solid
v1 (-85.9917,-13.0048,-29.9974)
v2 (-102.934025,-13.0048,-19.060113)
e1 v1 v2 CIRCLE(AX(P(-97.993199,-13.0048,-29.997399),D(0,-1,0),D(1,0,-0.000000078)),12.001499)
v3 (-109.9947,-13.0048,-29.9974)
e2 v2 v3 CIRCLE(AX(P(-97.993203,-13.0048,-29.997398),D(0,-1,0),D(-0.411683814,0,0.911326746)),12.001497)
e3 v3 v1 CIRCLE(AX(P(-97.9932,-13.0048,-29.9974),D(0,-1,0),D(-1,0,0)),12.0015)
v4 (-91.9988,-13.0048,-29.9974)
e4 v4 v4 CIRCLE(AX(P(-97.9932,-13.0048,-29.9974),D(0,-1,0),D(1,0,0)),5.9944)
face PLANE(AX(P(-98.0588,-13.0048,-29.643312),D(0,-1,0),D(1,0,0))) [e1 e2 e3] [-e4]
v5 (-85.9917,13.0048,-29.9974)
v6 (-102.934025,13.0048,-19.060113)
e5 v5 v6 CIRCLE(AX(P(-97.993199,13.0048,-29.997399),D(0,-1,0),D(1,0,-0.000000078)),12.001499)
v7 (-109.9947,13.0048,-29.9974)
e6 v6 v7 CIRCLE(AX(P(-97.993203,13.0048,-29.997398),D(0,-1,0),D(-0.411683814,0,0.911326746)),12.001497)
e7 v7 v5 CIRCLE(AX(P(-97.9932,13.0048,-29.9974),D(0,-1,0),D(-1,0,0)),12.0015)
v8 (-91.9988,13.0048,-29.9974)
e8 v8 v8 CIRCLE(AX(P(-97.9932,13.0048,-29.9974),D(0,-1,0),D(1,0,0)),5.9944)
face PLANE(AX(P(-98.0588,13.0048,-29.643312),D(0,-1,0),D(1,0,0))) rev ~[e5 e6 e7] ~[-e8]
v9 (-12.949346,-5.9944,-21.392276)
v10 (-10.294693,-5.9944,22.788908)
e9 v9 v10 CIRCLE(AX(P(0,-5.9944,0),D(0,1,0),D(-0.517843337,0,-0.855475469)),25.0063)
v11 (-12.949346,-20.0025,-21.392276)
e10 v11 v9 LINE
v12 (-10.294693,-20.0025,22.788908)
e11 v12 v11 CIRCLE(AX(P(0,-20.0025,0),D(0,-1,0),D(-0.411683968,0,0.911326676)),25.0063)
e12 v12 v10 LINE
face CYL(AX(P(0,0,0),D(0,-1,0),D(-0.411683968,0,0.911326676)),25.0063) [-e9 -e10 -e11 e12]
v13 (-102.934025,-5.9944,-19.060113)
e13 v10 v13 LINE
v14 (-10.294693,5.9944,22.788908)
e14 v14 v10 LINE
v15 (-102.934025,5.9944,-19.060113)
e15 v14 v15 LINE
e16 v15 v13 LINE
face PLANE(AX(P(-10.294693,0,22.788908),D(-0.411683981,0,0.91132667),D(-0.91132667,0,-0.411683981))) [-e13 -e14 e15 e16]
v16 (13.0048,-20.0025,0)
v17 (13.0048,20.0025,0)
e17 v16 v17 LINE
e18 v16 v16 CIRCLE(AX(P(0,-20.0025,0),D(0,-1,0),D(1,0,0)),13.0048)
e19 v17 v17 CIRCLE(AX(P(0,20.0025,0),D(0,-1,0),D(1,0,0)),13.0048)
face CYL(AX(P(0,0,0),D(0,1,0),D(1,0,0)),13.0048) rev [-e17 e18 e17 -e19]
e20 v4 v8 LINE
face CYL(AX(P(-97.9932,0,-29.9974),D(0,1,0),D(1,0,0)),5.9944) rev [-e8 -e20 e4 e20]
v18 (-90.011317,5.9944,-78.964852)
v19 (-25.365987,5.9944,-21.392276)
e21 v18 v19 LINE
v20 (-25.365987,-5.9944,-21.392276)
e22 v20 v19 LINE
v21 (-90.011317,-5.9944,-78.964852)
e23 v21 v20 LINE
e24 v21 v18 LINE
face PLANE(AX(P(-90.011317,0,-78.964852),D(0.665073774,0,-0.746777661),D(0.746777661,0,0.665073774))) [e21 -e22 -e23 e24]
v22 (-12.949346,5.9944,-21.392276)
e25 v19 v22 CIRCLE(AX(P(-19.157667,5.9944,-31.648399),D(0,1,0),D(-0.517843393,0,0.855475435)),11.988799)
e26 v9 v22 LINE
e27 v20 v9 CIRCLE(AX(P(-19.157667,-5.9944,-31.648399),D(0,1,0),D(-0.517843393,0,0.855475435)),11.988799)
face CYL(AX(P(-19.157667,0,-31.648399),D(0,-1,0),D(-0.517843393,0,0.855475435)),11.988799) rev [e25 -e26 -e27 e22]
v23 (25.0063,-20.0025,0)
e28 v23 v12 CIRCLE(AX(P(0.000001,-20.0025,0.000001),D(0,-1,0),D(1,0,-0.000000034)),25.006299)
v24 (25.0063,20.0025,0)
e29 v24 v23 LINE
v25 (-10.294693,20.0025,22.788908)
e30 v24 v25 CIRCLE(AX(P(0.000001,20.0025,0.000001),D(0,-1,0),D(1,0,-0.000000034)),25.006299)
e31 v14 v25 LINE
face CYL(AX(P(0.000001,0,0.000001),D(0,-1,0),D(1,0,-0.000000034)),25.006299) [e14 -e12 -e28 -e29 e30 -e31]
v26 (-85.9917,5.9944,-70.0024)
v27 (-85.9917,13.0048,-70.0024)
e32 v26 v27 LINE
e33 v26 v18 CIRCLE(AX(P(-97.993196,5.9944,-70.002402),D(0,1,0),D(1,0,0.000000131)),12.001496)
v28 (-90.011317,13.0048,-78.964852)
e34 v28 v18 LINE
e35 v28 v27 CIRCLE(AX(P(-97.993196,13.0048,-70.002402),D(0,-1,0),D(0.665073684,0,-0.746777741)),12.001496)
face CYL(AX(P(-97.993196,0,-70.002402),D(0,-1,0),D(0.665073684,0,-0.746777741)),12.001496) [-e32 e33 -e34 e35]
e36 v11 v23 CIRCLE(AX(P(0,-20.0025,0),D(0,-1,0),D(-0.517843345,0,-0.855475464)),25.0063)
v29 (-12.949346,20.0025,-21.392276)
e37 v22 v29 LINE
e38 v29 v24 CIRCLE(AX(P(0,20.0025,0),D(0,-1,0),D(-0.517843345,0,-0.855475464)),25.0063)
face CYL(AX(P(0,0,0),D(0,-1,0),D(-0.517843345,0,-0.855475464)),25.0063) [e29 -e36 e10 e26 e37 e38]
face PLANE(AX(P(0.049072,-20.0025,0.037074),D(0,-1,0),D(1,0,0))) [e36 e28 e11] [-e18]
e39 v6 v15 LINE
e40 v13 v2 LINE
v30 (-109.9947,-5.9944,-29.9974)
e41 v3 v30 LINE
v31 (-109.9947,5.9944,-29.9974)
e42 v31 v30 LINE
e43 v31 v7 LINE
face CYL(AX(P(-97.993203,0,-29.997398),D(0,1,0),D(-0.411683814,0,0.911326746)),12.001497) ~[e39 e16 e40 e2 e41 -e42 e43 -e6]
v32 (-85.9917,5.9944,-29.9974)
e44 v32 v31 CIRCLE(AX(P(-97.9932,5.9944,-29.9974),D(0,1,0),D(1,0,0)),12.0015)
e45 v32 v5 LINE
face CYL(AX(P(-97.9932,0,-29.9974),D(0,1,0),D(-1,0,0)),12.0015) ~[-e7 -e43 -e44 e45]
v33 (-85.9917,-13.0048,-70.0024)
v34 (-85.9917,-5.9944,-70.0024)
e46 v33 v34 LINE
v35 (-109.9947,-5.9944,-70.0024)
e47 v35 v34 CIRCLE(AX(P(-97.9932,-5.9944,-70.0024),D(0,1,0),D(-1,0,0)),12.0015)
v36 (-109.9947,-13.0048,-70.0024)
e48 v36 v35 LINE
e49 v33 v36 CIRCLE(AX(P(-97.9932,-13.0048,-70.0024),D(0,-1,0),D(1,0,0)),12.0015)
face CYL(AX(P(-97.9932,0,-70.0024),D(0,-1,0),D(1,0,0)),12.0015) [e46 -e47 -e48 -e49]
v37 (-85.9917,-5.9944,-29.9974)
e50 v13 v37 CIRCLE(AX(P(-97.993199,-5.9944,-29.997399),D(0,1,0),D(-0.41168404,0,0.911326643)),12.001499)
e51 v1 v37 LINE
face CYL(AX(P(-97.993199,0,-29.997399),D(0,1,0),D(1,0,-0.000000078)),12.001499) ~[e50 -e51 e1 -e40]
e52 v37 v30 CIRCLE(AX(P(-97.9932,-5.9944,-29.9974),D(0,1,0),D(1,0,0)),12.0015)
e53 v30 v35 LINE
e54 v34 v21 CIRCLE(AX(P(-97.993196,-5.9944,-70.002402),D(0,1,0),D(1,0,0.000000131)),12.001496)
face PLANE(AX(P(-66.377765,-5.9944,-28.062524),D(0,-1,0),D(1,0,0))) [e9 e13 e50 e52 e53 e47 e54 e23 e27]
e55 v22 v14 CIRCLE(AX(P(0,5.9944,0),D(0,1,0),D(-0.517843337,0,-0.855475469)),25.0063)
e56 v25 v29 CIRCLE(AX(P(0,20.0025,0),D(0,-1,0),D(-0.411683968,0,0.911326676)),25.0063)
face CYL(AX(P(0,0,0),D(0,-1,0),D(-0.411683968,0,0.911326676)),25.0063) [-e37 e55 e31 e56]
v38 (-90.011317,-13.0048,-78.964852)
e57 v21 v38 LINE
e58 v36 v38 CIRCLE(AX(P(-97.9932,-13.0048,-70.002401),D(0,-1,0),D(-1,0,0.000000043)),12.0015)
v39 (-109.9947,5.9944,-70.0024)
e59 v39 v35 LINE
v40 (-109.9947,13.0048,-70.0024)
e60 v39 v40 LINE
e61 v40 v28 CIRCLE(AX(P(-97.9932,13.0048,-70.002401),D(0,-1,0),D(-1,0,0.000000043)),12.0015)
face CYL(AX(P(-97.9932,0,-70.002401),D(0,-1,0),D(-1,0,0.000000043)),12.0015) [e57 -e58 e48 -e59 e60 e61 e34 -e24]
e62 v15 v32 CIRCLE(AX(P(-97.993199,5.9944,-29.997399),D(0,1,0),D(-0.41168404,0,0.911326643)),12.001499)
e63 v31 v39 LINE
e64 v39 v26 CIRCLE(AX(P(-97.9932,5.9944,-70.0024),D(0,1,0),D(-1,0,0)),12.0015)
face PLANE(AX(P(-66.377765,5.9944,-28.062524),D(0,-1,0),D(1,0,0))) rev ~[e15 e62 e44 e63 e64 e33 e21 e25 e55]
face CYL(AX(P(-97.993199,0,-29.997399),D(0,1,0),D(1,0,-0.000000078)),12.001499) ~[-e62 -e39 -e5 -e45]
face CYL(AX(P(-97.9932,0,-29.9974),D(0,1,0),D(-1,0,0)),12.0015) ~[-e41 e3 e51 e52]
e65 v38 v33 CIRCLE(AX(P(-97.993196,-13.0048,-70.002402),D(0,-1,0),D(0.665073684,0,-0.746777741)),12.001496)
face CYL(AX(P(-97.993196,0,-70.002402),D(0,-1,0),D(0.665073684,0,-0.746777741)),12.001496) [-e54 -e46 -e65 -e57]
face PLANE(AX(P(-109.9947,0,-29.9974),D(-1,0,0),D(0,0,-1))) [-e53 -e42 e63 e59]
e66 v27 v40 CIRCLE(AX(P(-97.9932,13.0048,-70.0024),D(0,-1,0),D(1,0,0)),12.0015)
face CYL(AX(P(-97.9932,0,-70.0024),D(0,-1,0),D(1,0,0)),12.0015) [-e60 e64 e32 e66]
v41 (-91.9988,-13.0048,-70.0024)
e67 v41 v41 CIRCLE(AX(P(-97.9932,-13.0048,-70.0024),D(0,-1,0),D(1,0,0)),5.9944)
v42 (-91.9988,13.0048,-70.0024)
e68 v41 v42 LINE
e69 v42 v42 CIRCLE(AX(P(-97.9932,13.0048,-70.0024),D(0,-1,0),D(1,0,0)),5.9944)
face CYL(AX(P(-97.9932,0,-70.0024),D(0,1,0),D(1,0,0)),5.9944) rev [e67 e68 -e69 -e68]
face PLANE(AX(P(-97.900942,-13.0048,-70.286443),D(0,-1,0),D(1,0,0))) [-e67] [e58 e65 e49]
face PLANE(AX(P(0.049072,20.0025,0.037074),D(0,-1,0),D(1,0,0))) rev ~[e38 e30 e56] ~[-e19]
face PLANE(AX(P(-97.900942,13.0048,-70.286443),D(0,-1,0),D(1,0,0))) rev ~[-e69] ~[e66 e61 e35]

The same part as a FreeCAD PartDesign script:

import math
import FreeCAD as App
import Part
import Sketcher
from FreeCAD import Vector
Q = App.Units.Quantity

doc = App.newDocument("Part")
params = doc.addObject("Spreadsheet::Sheet", "Params")
for row, (alias, value) in enumerate([
    ("sketch1_diameter", "1.024 in"),
    ("pad1_length", "1.575 in"),
    ("sketch2_radius", "0.472 in"),
    ("sketch2_height", "1.575 in"),
    ("pad2_length", "0.472 in"),
    ("sketch3_diameter", "0.472 in"),
    ("pad3_length", "1.024 in"),
], start=1):
    params.set(f"A{row}", alias)
    params.set(f"B{row}", "=" + value)
    params.setAlias(f"B{row}", alias)

body = doc.addObject("PartDesign::Body", "Body")

# Sketch on XZ plane
sketch1 = body.newObject("Sketcher::SketchObject", "Sketch")
sketch1.AttachmentSupport = (doc.getObject("XZ_Plane"), [""])
sketch1.MapMode = "FlatFace"
sketch1.addGeometry([
    Part.ArcOfCircle(Part.Circle(Vector(0, 0, 0), Vector(0, 0, 1), 25.0063), math.radians(-121.187698), math.radians(0)),
    Part.ArcOfCircle(Part.Circle(Vector(0.000001, 0.000001, 0), Vector(0, 0, 1), 25.006299), math.radians(-0.000002), math.radians(114.310666)),
    Part.ArcOfCircle(Part.Circle(Vector(0, 0, 0), Vector(0, 0, 1), 25.0063), math.radians(114.310663), math.radians(238.812302)),
    Part.Circle(Vector(0, 0, 0), Vector(0, 0, 1), 13.0048),
], False)
sketch1.addConstraint([
    Sketcher.Constraint("Tangent", 0, 2, 1, 1),
    Sketcher.Constraint("Tangent", 1, 2, 2, 1),
    Sketcher.Constraint("Tangent", 2, 2, 0, 1),
    Sketcher.Constraint("Coincident", 0, 3, -1, 1),
    Sketcher.Constraint("Coincident", 3, 3, -1, 1),
    Sketcher.Constraint("PointOnObject", 0, 2, -1),
    Sketcher.Constraint("Diameter", 3, Q("1.024 in")),
    Sketcher.Constraint("Radius", 0, Q("0.9845 in")),
    Sketcher.Constraint("DistanceY", -1, 1, 1, 2, 22.788908),
    Sketcher.Constraint("DistanceX", 2, 2, -1, 1, 12.949346),
])
sketch1.setExpression("Constraints[6]", "Params.sketch1_diameter")
pad1 = body.newObject("PartDesign::Pad", "Pad")
pad1.Profile = sketch1
pad1.setExpression("Length", "Params.pad1_length")
pad1.Midplane = True

# Sketch on XZ plane
sketch2 = body.newObject("Sketcher::SketchObject", "Sketch001")
sketch2.AttachmentSupport = (doc.getObject("XZ_Plane"), [""])
sketch2.MapMode = "FlatFace"
sketch2.addGeometry([
    Part.ArcOfCircle(Part.Circle(Vector(0, 0, 0), Vector(0, 0, 1), 25.0063), math.radians(114.310663), math.radians(238.812302)),  # 0
    Part.LineSegment(Vector(-10.294693, 22.788908, 0), Vector(-102.934025, -19.060113, 0)),  # 1
    Part.ArcOfCircle(Part.Circle(Vector(-97.993199, -29.997399, 0), Vector(0, 0, 1), 12.001499), math.radians(-0.000004), math.radians(114.310668)),  # 2
    Part.ArcOfCircle(Part.Circle(Vector(-97.9932, -29.9974, 0), Vector(0, 0, 1), 12.0015), math.radians(180), math.radians(360)),  # 3
    Part.LineSegment(Vector(-109.9947, -29.9974, 0), Vector(-109.9947, -70.0024, 0)),  # 4
    Part.ArcOfCircle(Part.Circle(Vector(-97.9932, -70.0024, 0), Vector(0, 0, 1), 12.0015), math.radians(0), math.radians(180)),  # 5
    Part.ArcOfCircle(Part.Circle(Vector(-97.993196, -70.002402, 0), Vector(0, 0, 1), 12.001496), math.radians(-48.312022), math.radians(0.000008)),  # 6
    Part.LineSegment(Vector(-90.011317, -78.964852, 0), Vector(-25.365987, -21.392276, 0)),  # 7
    Part.ArcOfCircle(Part.Circle(Vector(-19.157667, -31.648399, 0), Vector(0, 0, 1), 11.988799), math.radians(58.812299), math.radians(121.187701)),  # 8
], False)
sketch2.addConstraint([
    Sketcher.Constraint("Tangent", 0, 1, 1, 1),
    Sketcher.Constraint("Tangent", 1, 2, 2, 2),
    Sketcher.Constraint("Tangent", 2, 1, 3, 2),
    Sketcher.Constraint("Tangent", 3, 1, 4, 1),
    Sketcher.Constraint("Tangent", 4, 2, 5, 2),
    Sketcher.Constraint("Tangent", 5, 1, 6, 2),
    Sketcher.Constraint("Tangent", 6, 1, 7, 1),
    Sketcher.Constraint("Coincident", 7, 2, 8, 2),
    Sketcher.Constraint("Tangent", 8, 1, 0, 2),
    Sketcher.Constraint("Vertical", 4),
    Sketcher.Constraint("Coincident", 0, 3, -1, 1),
    Sketcher.Constraint("Equal", 2, 3),
    Sketcher.Constraint("Equal", 3, 5),
    Sketcher.Constraint("Horizontal", 3, 3, 2, 1),
    Sketcher.Constraint("Horizontal", 4, 2, 5, 1),
    Sketcher.Constraint("Horizontal", 7, 2, 8, 1),
    Sketcher.Constraint("Radius", 8, Q("0.472 in")),
    Sketcher.Constraint("Radius", 0, Q("0.9845 in")),
    Sketcher.Constraint("Radius", 2, Q("0.4725 in")),
    Sketcher.Constraint("Radius", 6, Q("0.4724999 in")),
    Sketcher.Constraint("DistanceY", 4, 2, 4, 1, Q("1.575 in")),
    Sketcher.Constraint("DistanceY", 6, 3, 8, 3, Q("1.5100001 in")),
    Sketcher.Constraint("DistanceX", 2, 3, -1, 1, Q("3.858 in")),
    Sketcher.Constraint("DistanceY", 2, 3, -1, 1, Q("1.181 in")),
])
sketch2.setExpression("Constraints[16]", "Params.sketch2_radius")
sketch2.setExpression("Constraints[20]", "Params.sketch2_height")
pad2 = body.newObject("PartDesign::Pad", "Pad001")
pad2.Profile = sketch2
pad2.setExpression("Length", "Params.pad2_length")
pad2.Midplane = True

# Sketch on XZ plane
sketch3 = body.newObject("Sketcher::SketchObject", "Sketch002")
sketch3.AttachmentSupport = (doc.getObject("XZ_Plane"), [""])
sketch3.MapMode = "FlatFace"
sketch3.addGeometry([
    Part.ArcOfCircle(Part.Circle(Vector(-97.993199, -29.997399, 0), Vector(0, 0, 1), 12.001499), math.radians(-0.000004), math.radians(114.310668)),  # 0
    Part.ArcOfCircle(Part.Circle(Vector(-97.993203, -29.997398, 0), Vector(0, 0, 1), 12.001497), math.radians(114.310653), math.radians(180.000008)),  # 1
    Part.ArcOfCircle(Part.Circle(Vector(-97.9932, -29.9974, 0), Vector(0, 0, 1), 12.0015), math.radians(180), math.radians(360)),  # 2
    Part.Circle(Vector(-97.9932, -29.9974, 0), Vector(0, 0, 1), 5.9944),  # 3
    Part.ArcOfCircle(Part.Circle(Vector(-97.9932, -70.002401, 0), Vector(0, 0, 1), 12.0015), math.radians(179.999998), math.radians(311.687989)),  # 4
    Part.ArcOfCircle(Part.Circle(Vector(-97.993196, -70.002402, 0), Vector(0, 0, 1), 12.001496), math.radians(-48.312022), math.radians(0.000008)),  # 5
    Part.ArcOfCircle(Part.Circle(Vector(-97.9932, -70.0024, 0), Vector(0, 0, 1), 12.0015), math.radians(0), math.radians(180)),  # 6
    Part.Circle(Vector(-97.9932, -70.0024, 0), Vector(0, 0, 1), 5.9944),  # 7
], False)
sketch3.addConstraint([
    Sketcher.Constraint("Tangent", 0, 2, 1, 1),
    Sketcher.Constraint("Tangent", 1, 2, 2, 1),
    Sketcher.Constraint("Tangent", 2, 2, 0, 1),
    Sketcher.Constraint("Tangent", 4, 2, 5, 1),
    Sketcher.Constraint("Tangent", 5, 2, 6, 1),
    Sketcher.Constraint("Tangent", 6, 2, 4, 1),
    Sketcher.Constraint("Coincident", 3, 3, 0, 3),
    Sketcher.Constraint("Coincident", 7, 3, 4, 3),
    Sketcher.Constraint("Equal", 2, 4),
    Sketcher.Constraint("Equal", 3, 7),
    Sketcher.Constraint("Horizontal", 3, 3, 1, 2),
    Sketcher.Constraint("Horizontal", 1, 2, 2, 2),
    Sketcher.Constraint("Horizontal", 7, 3, 5, 2),
    Sketcher.Constraint("Horizontal", 5, 2, 6, 2),
    Sketcher.Constraint("Vertical", 3, 3, 4, 3),
    Sketcher.Constraint("Diameter", 3, Q("0.472 in")),
    Sketcher.Constraint("Radius", 0, Q("0.4725 in")),
    Sketcher.Constraint("DistanceX", 0, 3, -1, 1, Q("3.858 in")),
    Sketcher.Constraint("DistanceY", 0, 3, -1, 1, Q("1.181 in")),
    Sketcher.Constraint("DistanceY", 4, 3, -1, 1, Q("2.756 in")),
    Sketcher.Constraint("DistanceY", 4, 2, -1, 1, 78.964852),
    Sketcher.Constraint("DistanceX", 0, 2, -1, 1, 102.934025),
])
sketch3.setExpression("Constraints[15]", "Params.sketch3_diameter")
pad3 = body.newObject("PartDesign::Pad", "Pad002")
pad3.Profile = sketch3
pad3.setExpression("Length", "Params.pad3_length")
pad3.Midplane = True

doc.recompute()
